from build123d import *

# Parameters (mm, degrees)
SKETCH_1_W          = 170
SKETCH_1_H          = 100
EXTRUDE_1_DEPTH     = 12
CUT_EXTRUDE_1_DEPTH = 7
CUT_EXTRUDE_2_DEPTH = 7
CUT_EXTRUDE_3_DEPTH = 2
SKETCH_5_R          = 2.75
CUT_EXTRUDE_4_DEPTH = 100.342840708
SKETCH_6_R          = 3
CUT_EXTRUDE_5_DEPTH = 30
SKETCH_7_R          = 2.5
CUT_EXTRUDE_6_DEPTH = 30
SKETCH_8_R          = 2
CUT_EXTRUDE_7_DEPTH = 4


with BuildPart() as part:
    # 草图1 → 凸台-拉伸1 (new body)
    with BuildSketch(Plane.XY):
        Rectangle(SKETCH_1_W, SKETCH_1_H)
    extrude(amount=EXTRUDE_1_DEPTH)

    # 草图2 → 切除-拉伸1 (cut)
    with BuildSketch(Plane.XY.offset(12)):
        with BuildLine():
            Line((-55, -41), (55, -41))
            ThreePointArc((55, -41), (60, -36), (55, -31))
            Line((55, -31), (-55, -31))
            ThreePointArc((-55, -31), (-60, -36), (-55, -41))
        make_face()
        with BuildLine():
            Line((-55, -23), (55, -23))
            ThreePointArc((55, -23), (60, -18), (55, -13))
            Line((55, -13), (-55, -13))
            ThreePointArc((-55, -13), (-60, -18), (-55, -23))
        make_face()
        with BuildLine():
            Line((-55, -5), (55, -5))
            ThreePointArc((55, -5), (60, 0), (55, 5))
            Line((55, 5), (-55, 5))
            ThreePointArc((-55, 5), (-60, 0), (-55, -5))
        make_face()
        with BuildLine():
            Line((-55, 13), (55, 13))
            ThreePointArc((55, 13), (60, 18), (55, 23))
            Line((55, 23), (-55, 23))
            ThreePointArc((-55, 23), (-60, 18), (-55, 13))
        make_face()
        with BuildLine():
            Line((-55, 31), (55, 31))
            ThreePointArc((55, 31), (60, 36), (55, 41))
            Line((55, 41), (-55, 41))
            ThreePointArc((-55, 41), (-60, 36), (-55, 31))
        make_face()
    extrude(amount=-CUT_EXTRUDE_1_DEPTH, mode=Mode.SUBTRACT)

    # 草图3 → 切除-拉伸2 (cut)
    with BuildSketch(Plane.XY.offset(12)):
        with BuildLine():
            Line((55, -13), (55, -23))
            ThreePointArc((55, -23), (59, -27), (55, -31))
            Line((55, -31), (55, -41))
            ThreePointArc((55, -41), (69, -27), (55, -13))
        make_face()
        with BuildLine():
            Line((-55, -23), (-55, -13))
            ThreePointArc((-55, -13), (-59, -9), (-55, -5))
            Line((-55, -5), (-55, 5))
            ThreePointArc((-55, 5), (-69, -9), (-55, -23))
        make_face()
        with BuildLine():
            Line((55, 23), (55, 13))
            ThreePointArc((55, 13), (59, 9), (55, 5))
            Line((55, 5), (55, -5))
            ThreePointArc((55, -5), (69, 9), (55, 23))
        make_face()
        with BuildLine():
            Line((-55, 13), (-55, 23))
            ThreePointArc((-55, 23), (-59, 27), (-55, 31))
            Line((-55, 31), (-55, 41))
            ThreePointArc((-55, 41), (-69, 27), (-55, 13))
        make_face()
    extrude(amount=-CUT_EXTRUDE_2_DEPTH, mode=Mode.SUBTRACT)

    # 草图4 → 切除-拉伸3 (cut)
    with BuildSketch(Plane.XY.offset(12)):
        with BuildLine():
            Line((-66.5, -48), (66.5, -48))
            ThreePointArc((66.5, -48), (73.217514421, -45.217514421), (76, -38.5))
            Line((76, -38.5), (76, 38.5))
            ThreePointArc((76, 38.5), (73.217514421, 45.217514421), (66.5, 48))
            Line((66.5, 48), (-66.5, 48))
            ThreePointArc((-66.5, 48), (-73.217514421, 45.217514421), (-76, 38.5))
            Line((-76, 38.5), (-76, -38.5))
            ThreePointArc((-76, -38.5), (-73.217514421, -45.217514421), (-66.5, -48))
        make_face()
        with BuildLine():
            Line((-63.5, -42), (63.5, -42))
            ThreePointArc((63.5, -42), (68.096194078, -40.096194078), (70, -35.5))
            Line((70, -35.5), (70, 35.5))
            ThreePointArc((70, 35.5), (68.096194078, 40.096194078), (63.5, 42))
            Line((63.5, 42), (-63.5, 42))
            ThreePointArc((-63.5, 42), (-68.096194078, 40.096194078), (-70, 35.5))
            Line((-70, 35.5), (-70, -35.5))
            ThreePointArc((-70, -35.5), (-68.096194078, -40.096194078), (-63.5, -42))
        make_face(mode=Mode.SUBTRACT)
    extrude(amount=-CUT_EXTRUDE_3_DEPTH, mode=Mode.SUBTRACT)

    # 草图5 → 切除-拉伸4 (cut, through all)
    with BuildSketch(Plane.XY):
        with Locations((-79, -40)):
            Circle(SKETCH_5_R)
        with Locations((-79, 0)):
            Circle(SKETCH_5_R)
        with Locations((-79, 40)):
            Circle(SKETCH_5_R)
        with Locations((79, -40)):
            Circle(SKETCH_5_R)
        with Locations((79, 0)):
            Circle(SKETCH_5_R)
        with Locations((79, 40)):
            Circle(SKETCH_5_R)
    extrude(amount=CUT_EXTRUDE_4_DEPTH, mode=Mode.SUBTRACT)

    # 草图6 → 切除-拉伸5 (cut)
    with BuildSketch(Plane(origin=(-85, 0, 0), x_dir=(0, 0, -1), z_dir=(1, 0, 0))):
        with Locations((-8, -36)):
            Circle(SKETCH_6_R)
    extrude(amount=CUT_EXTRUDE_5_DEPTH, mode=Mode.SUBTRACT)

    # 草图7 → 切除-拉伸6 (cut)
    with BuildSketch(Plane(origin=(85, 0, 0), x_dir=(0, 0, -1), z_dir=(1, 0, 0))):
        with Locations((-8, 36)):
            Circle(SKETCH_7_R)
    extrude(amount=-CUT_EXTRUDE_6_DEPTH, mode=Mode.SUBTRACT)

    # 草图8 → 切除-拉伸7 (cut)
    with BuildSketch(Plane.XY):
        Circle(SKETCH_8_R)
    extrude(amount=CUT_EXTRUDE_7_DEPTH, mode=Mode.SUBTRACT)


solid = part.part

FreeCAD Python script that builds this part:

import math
import FreeCAD as App
import Part
import Sketcher
Q = App.Units.Quantity

doc = App.newDocument("Part")
body = doc.addObject("PartDesign::Body", "Body")

# Sketch on XY plane
sketch1 = body.newObject("Sketcher::SketchObject", "Sketch")
sketch1.AttachmentSupport = (doc.getObject("XY_Plane"), [""])
sketch1.MapMode = "FlatFace"
sketch1.addGeometry([
    Part.LineSegment(App.Vector(-85, 50, 0), App.Vector(-85, -50, 0)),
    Part.LineSegment(App.Vector(-85, -50, 0), App.Vector(85, -50, 0)),
    Part.LineSegment(App.Vector(85, -50, 0), App.Vector(85, 50, 0)),
    Part.LineSegment(App.Vector(85, 50, 0), App.Vector(-85, 50, 0)),
], False)
sketch1.addConstraint([
    Sketcher.Constraint("Coincident", 0, 2, 1, 1),
    Sketcher.Constraint("Coincident", 1, 2, 2, 1),
    Sketcher.Constraint("Coincident", 2, 2, 3, 1),
    Sketcher.Constraint("Coincident", 3, 2, 0, 1),
    Sketcher.Constraint("Vertical", 0),
    Sketcher.Constraint("Horizontal", 1),
    Sketcher.Constraint("Vertical", 2),
    Sketcher.Constraint("Horizontal", 3),
    Sketcher.Constraint("Symmetric", 0, 2, 2, 2, -1, 1),
    Sketcher.Constraint("DistanceX", 1, 1, 1, 2, Q("170 mm")),
    Sketcher.Constraint("DistanceY", 0, 2, 0, 1, Q("100 mm")),
])
pad1 = body.newObject("PartDesign::Pad", "Pad")
pad1.Profile = sketch1
pad1.Length = 12

# Sketch on XY plane
sketch2 = body.newObject("Sketcher::SketchObject", "Sketch001")
sketch2.AttachmentSupport = (doc.getObject("XY_Plane"), [""])
sketch2.MapMode = "FlatFace"
sketch2.AttachmentOffset = App.Placement(App.Vector(0, 0, 12), App.Rotation())
sketch2.addGeometry([
    Part.LineSegment(App.Vector(-55, -41, 0), App.Vector(55, -41, 0)),  # 0
    Part.ArcOfCircle(Part.Circle(App.Vector(55, -36, 0), App.Vector(0, 0, 1), 5), math.radians(-90), math.radians(90)),  # 1
    Part.LineSegment(App.Vector(55, -31, 0), App.Vector(-55, -31, 0)),  # 2
    Part.ArcOfCircle(Part.Circle(App.Vector(-55, -36, 0), App.Vector(0, 0, 1), 5), math.radians(90), math.radians(270)),  # 3
    Part.LineSegment(App.Vector(-55, -23, 0), App.Vector(55, -23, 0)),  # 4
    Part.ArcOfCircle(Part.Circle(App.Vector(55, -18, 0), App.Vector(0, 0, 1), 5), math.radians(-90), math.radians(90)),  # 5
    Part.LineSegment(App.Vector(55, -13, 0), App.Vector(-55, -13, 0)),  # 6
    Part.ArcOfCircle(Part.Circle(App.Vector(-55, -18, 0), App.Vector(0, 0, 1), 5), math.radians(90), math.radians(270)),  # 7
    Part.LineSegment(App.Vector(-55, -5, 0), App.Vector(55, -5, 0)),  # 8
    Part.ArcOfCircle(Part.Circle(App.Vector(55, 0, 0), App.Vector(0, 0, 1), 5), math.radians(-90), math.radians(90)),  # 9
    Part.LineSegment(App.Vector(55, 5, 0), App.Vector(-55, 5, 0)),  # 10
    Part.ArcOfCircle(Part.Circle(App.Vector(-55, 0, 0), App.Vector(0, 0, 1), 5), math.radians(90), math.radians(270)),  # 11
    Part.LineSegment(App.Vector(-55, 13, 0), App.Vector(55, 13, 0)),  # 12
    Part.ArcOfCircle(Part.Circle(App.Vector(55, 18, 0), App.Vector(0, 0, 1), 5), math.radians(-90), math.radians(90)),  # 13
    Part.LineSegment(App.Vector(55, 23, 0), App.Vector(-55, 23, 0)),  # 14
    Part.ArcOfCircle(Part.Circle(App.Vector(-55, 18, 0), App.Vector(0, 0, 1), 5), math.radians(90), math.radians(270)),  # 15
    Part.LineSegment(App.Vector(-55, 31, 0), App.Vector(55, 31, 0)),  # 16
    Part.ArcOfCircle(Part.Circle(App.Vector(55, 36, 0), App.Vector(0, 0, 1), 5), math.radians(-90), math.radians(90)),  # 17
    Part.LineSegment(App.Vector(55, 41, 0), App.Vector(-55, 41, 0)),  # 18
    Part.ArcOfCircle(Part.Circle(App.Vector(-55, 36, 0), App.Vector(0, 0, 1), 5), math.radians(90), math.radians(270)),  # 19
], False)
sketch2.addConstraint([
    Sketcher.Constraint("Tangent", 0, 2, 1, 1),
    Sketcher.Constraint("Tangent", 1, 2, 2, 1),
    Sketcher.Constraint("Tangent", 2, 2, 3, 1),
    Sketcher.Constraint("Tangent", 3, 2, 0, 1),
    Sketcher.Constraint("Tangent", 4, 2, 5, 1),
    Sketcher.Constraint("Tangent", 5, 2, 6, 1),
    Sketcher.Constraint("Tangent", 6, 2, 7, 1),
    Sketcher.Constraint("Tangent", 7, 2, 4, 1),
    Sketcher.Constraint("Tangent", 8, 2, 9, 1),
    Sketcher.Constraint("Tangent", 9, 2, 10, 1),
    Sketcher.Constraint("Tangent", 10, 2, 11, 1),
    Sketcher.Constraint("Tangent", 11, 2, 8, 1),
    Sketcher.Constraint("Tangent", 12, 2, 13, 1),
    Sketcher.Constraint("Tangent", 13, 2, 14, 1),
    Sketcher.Constraint("Tangent", 14, 2, 15, 1),
    Sketcher.Constraint("Tangent", 15, 2, 12, 1),
    Sketcher.Constraint("Tangent", 16, 2, 17, 1),
    Sketcher.Constraint("Tangent", 17, 2, 18, 1),
    Sketcher.Constraint("Tangent", 18, 2, 19, 1),
    Sketcher.Constraint("Tangent", 19, 2, 16, 1),
    Sketcher.Constraint("Horizontal", 0),
    Sketcher.Constraint("Horizontal", 2),
    Sketcher.Constraint("Horizontal", 4),
    Sketcher.Constraint("Horizontal", 6),
    Sketcher.Constraint("Horizontal", 8),
    Sketcher.Constraint("Horizontal", 10),
    Sketcher.Constraint("Horizontal", 12),
    Sketcher.Constraint("Horizontal", 14),
    Sketcher.Constraint("Horizontal", 16),
    Sketcher.Constraint("Horizontal", 18),
    Sketcher.Constraint("Equal", 3, 5),
    Sketcher.Constraint("Equal", 7, 9),
    Sketcher.Constraint("Equal", 11, 13),
    Sketcher.Constraint("Equal", 15, 17),
    Sketcher.Constraint("Symmetric", 9, 3, 11, 3, -1, 1),
    Sketcher.Constraint("Symmetric", 7, 3, 13, 3, -1, 1),
    Sketcher.Constraint("Symmetric", 3, 3, 17, 3, -1, 1),
    Sketcher.Constraint("Vertical", 1, 3, 5, 3),
    Sketcher.Constraint("Vertical", 3, 3, 7, 3),
    Sketcher.Constraint("Vertical", 5, 3, 9, 3),
    Sketcher.Constraint("Vertical", 7, 3, 11, 3),
    Sketcher.Constraint("Vertical", 11, 3, 15, 3),
    Sketcher.Constraint("Vertical", 15, 3, 19, 3),
    Sketcher.Constraint("Radius", 1, Q("5 mm")),
    Sketcher.Constraint("DistanceX", 0, 1, 0, 2, Q("110 mm")),
    Sketcher.Constraint("DistanceY", 1, 3, -1, 1, Q("36 mm")),
    Sketcher.Constraint("DistanceY", 5, 3, -1, 1, Q("18 mm")),
])
pocket1 = body.newObject("PartDesign::Pocket", "Pocket")
pocket1.Profile = sketch2
pocket1.Length = 7

# Sketch on XY plane
sketch3 = body.newObject("Sketcher::SketchObject", "Sketch002")
sketch3.AttachmentSupport = (doc.getObject("XY_Plane"), [""])
sketch3.MapMode = "FlatFace"
sketch3.AttachmentOffset = App.Placement(App.Vector(0, 0, 12), App.Rotation())
sketch3.addGeometry([
    Part.LineSegment(App.Vector(55, -13, 0), App.Vector(55, -23, 0)),  # 0
    Part.ArcOfCircle(Part.Circle(App.Vector(55, -27, 0), App.Vector(0, 0, 1), 4), math.radians(-90), math.radians(90)),  # 1
    Part.LineSegment(App.Vector(55, -31, 0), App.Vector(55, -41, 0)),  # 2
    Part.ArcOfCircle(Part.Circle(App.Vector(55, -27, 0), App.Vector(0, 0, 1), 14), math.radians(-90), math.radians(90)),  # 3
    Part.LineSegment(App.Vector(-55, -23, 0), App.Vector(-55, -13, 0)),  # 4
    Part.ArcOfCircle(Part.Circle(App.Vector(-55, -9, 0), App.Vector(0, 0, 1), 4), math.radians(90), math.radians(270)),  # 5
    Part.LineSegment(App.Vector(-55, -5, 0), App.Vector(-55, 5, 0)),  # 6
    Part.ArcOfCircle(Part.Circle(App.Vector(-55, -9, 0), App.Vector(0, 0, 1), 14), math.radians(90), math.radians(270)),  # 7
    Part.LineSegment(App.Vector(55, 23, 0), App.Vector(55, 13, 0)),  # 8
    Part.ArcOfCircle(Part.Circle(App.Vector(55, 9, 0), App.Vector(0, 0, 1), 4), math.radians(-90), math.radians(90)),  # 9
    Part.LineSegment(App.Vector(55, 5, 0), App.Vector(55, -5, 0)),  # 10
    Part.ArcOfCircle(Part.Circle(App.Vector(55, 9, 0), App.Vector(0, 0, 1), 14), math.radians(-90), math.radians(90)),  # 11
    Part.LineSegment(App.Vector(-55, 13, 0), App.Vector(-55, 23, 0)),  # 12
    Part.ArcOfCircle(Part.Circle(App.Vector(-55, 27, 0), App.Vector(0, 0, 1), 4), math.radians(90), math.radians(270)),  # 13
    Part.LineSegment(App.Vector(-55, 31, 0), App.Vector(-55, 41, 0)),  # 14
    Part.ArcOfCircle(Part.Circle(App.Vector(-55, 27, 0), App.Vector(0, 0, 1), 14), math.radians(90), math.radians(270)),  # 15
], False)
sketch3.addConstraint([
    Sketcher.Constraint("Coincident", 0, 2, 1, 2),
    Sketcher.Constraint("Coincident", 1, 1, 2, 1),
    Sketcher.Constraint("Coincident", 2, 2, 3, 1),
    Sketcher.Constraint("Coincident", 3, 2, 0, 1),
    Sketcher.Constraint("Coincident", 4, 2, 5, 2),
    Sketcher.Constraint("Coincident", 5, 1, 6, 1),
    Sketcher.Constraint("Coincident", 6, 2, 7, 1),
    Sketcher.Constraint("Coincident", 7, 2, 4, 1),
    Sketcher.Constraint("Coincident", 8, 2, 9, 2),
    Sketcher.Constraint("Coincident", 9, 1, 10, 1),
    Sketcher.Constraint("Coincident", 10, 2, 11, 1),
    Sketcher.Constraint("Coincident", 11, 2, 8, 1),
    Sketcher.Constraint("Coincident", 12, 2, 13, 2),
    Sketcher.Constraint("Coincident", 13, 1, 14, 1),
    Sketcher.Constraint("Coincident", 14, 2, 15, 1),
    Sketcher.Constraint("Coincident", 15, 2, 12, 1),
    Sketcher.Constraint("Vertical", 0),
    Sketcher.Constraint("Vertical", 2),
    Sketcher.Constraint("Vertical", 4),
    Sketcher.Constraint("Vertical", 6),
    Sketcher.Constraint("Vertical", 8),
    Sketcher.Constraint("Vertical", 10),
    Sketcher.Constraint("Vertical", 12),
    Sketcher.Constraint("Vertical", 14),
    Sketcher.Constraint("Coincident", 3, 3, 1, 3),
    Sketcher.Constraint("Coincident", 7, 3, 5, 3),
    Sketcher.Constraint("Coincident", 11, 3, 9, 3),
    Sketcher.Constraint("Coincident", 15, 3, 13, 3),
    Sketcher.Constraint("Equal", 1, 5),
    Sketcher.Constraint("Equal", 3, 7),
    Sketcher.Constraint("Equal", 5, 9),
    Sketcher.Constraint("Equal", 7, 11),
    Sketcher.Constraint("Equal", 9, 13),
    Sketcher.Constraint("Equal", 11, 15),
    Sketcher.Constraint("Symmetric", 5, 3, 9, 3, -1, 1),
    Sketcher.Constraint("Symmetric", 1, 3, 13, 3, -1, 1),
    Sketcher.Constraint("Symmetric", 3, 2, 4, 2, -2),
    Sketcher.Constraint("Symmetric", 6, 2, 9, 1, -2),
    Sketcher.Constraint("Vertical", 3, 3, 9, 3),
    Sketcher.Constraint("Vertical", 11, 3, 0, 2),
    Sketcher.Constraint("Vertical", 0, 2, 1, 1),
    Sketcher.Constraint("Vertical", 4, 2, 5, 1),
    Sketcher.Constraint("Vertical", 3, 2, 8, 2),
    Sketcher.Constraint("Vertical", 7, 2, 12, 2),
    Sketcher.Constraint("Vertical", 12, 2, 13, 1),
    Sketcher.Constraint("Radius", 1, Q("4 mm")),
    Sketcher.Constraint("Radius", 3, Q("14 mm")),
    Sketcher.Constraint("DistanceX", -1, 1, 1, 3, Q("55 mm")),
])
pocket2 = body.newObject("PartDesign::Pocket", "Pocket001")
pocket2.Profile = sketch3
pocket2.Length = 7

# Sketch on XY plane
sketch4 = body.newObject("Sketcher::SketchObject", "Sketch003")
sketch4.AttachmentSupport = (doc.getObject("XY_Plane"), [""])
sketch4.MapMode = "FlatFace"
sketch4.AttachmentOffset = App.Placement(App.Vector(0, 0, 12), App.Rotation())
sketch4.addGeometry([
    Part.LineSegment(App.Vector(-66, -48, 0), App.Vector(66, -48, 0)),  # 0
    Part.ArcOfCircle(Part.Circle(App.Vector(66, -38, 0), App.Vector(0, 0, 1), 10), math.radians(-90), math.radians(0)),  # 1
    Part.LineSegment(App.Vector(76, -38, 0), App.Vector(76, 38, 0)),  # 2
    Part.ArcOfCircle(Part.Circle(App.Vector(66, 38, 0), App.Vector(0, 0, 1), 10), math.radians(0), math.radians(90)),  # 3
    Part.LineSegment(App.Vector(66, 48, 0), App.Vector(-66, 48, 0)),  # 4
    Part.ArcOfCircle(Part.Circle(App.Vector(-66, 38, 0), App.Vector(0, 0, 1), 10), math.radians(90), math.radians(180)),  # 5
    Part.LineSegment(App.Vector(-76, 38, 0), App.Vector(-76, -38, 0)),  # 6
    Part.ArcOfCircle(Part.Circle(App.Vector(-66, -38, 0), App.Vector(0, 0, 1), 10), math.radians(-180), math.radians(-90)),  # 7
    Part.LineSegment(App.Vector(64, -42, 0), App.Vector(-64, -42, 0)),  # 8
    Part.ArcOfCircle(Part.Circle(App.Vector(-64, -36, 0), App.Vector(0, 0, 1), 6), math.radians(180), math.radians(270)),  # 9
    Part.LineSegment(App.Vector(-70, -36, 0), App.Vector(-70, 36, 0)),  # 10
    Part.ArcOfCircle(Part.Circle(App.Vector(-64, 36, 0), App.Vector(0, 0, 1), 6), math.radians(90), math.radians(180)),  # 11
    Part.LineSegment(App.Vector(-64, 42, 0), App.Vector(64, 42, 0)),  # 12
    Part.ArcOfCircle(Part.Circle(App.Vector(64, 36, 0), App.Vector(0, 0, 1), 6), math.radians(0), math.radians(90)),  # 13
    Part.LineSegment(App.Vector(70, 36, 0), App.Vector(70, -36, 0)),  # 14
    Part.ArcOfCircle(Part.Circle(App.Vector(64, -36, 0), App.Vector(0, 0, 1), 6), math.radians(-90), math.radians(0)),  # 15
], False)
sketch4.addConstraint([
    Sketcher.Constraint("Tangent", 0, 2, 1, 1),
    Sketcher.Constraint("Tangent", 1, 2, 2, 1),
    Sketcher.Constraint("Tangent", 2, 2, 3, 1),
    Sketcher.Constraint("Tangent", 3, 2, 4, 1),
    Sketcher.Constraint("Tangent", 4, 2, 5, 1),
    Sketcher.Constraint("Tangent", 5, 2, 6, 1),
    Sketcher.Constraint("Tangent", 6, 2, 7, 1),
    Sketcher.Constraint("Tangent", 7, 2, 0, 1),
    Sketcher.Constraint("Tangent", 8, 2, 9, 2),
    Sketcher.Constraint("Tangent", 9, 1, 10, 1),
    Sketcher.Constraint("Tangent", 10, 2, 11, 2),
    Sketcher.Constraint("Tangent", 11, 1, 12, 1),
    Sketcher.Constraint("Tangent", 12, 2, 13, 2),
    Sketcher.Constraint("Tangent", 13, 1, 14, 1),
    Sketcher.Constraint("Tangent", 14, 2, 15, 2),
    Sketcher.Constraint("Tangent", 15, 1, 8, 1),
    Sketcher.Constraint("Horizontal", 0),
    Sketcher.Constraint("Vertical", 2),
    Sketcher.Constraint("Horizontal", 4),
    Sketcher.Constraint("Vertical", 6),
    Sketcher.Constraint("Horizontal", 8),
    Sketcher.Constraint("Vertical", 10),
    Sketcher.Constraint("Horizontal", 12),
    Sketcher.Constraint("Vertical", 14),
    Sketcher.Constraint("Equal", 1, 3),
    Sketcher.Constraint("Equal", 3, 5),
    Sketcher.Constraint("Equal", 5, 7),
    Sketcher.Constraint("Equal", 9, 11),
    Sketcher.Constraint("Equal", 11, 13),
    Sketcher.Constraint("Equal", 13, 15),
    Sketcher.Constraint("Symmetric", 1, 3, 5, 3, -1, 1),
    Sketcher.Constraint("Symmetric", 9, 3, 13, 3, -1, 1),
    Sketcher.Constraint("Radius", 1, Q("9.5 mm")),
    Sketcher.Constraint("Radius", 9, Q("6.5 mm")),
    Sketcher.Constraint("DistanceX", 0, 1, 0, 2, Q("133 mm")),
    Sketcher.Constraint("DistanceX", 8, 2, 8, 1, Q("127 mm")),
    Sketcher.Constraint("DistanceY", 2, 1, 2, 2, Q("77 mm")),
    Sketcher.Constraint("DistanceY", 10, 1, 10, 2, Q("71 mm")),
])
pocket3 = body.newObject("PartDesign::Pocket", "Pocket002")
pocket3.Profile = sketch4
pocket3.Length = 2

# Sketch on XY plane
sketch5 = body.newObject("Sketcher::SketchObject", "Sketch004")
sketch5.AttachmentSupport = (doc.getObject("XY_Plane"), [""])
sketch5.MapMode = "FlatFace"
sketch5.addGeometry([
    Part.Circle(App.Vector(-79, -40, 0), App.Vector(0, 0, 1), 2.8),  # 0
    Part.Circle(App.Vector(-79, 0, 0), App.Vector(0, 0, 1), 2.8),  # 1
    Part.Circle(App.Vector(-79, 40, 0), App.Vector(0, 0, 1), 2.8),  # 2
    Part.Circle(App.Vector(79, -40, 0), App.Vector(0, 0, 1), 2.8),  # 3
    Part.Circle(App.Vector(79, 0, 0), App.Vector(0, 0, 1), 2.8),  # 4
    Part.Circle(App.Vector(79, 40, 0), App.Vector(0, 0, 1), 2.8),  # 5
], False)
sketch5.addConstraint([
    Sketcher.Constraint("Equal", 0, 1),
    Sketcher.Constraint("Equal", 1, 2),
    Sketcher.Constraint("Equal", 2, 3),
    Sketcher.Constraint("Equal", 3, 4),
    Sketcher.Constraint("Equal", 4, 5),
    Sketcher.Constraint("Symmetric", 2, 3, 3, 3, -1, 1),
    Sketcher.Constraint("Symmetric", 1, 3, 4, 3, -1, 1),
    Sketcher.Constraint("Symmetric", 0, 3, 5, 3, -1, 1),
    Sketcher.Constraint("Symmetric", 0, 3, 3, 3, -2),
    Sketcher.Constraint("PointOnObject", 1, 3, -1),
    Sketcher.Constraint("Vertical", 0, 3, 1, 3),
    Sketcher.Constraint("Diameter", 0, Q("5.5 mm")),
    Sketcher.Constraint("DistanceX", 0, 3, -1, 1, Q("79 mm")),
    Sketcher.Constraint("DistanceY", 0, 3, -1, 1, Q("40 mm")),
])
pocket4 = body.newObject("PartDesign::Pocket", "Pocket003")
pocket4.Profile = sketch5
pocket4.Type = "ThroughAll"
pocket4.Reversed = True

# Sketch on YZ plane
sketch6 = body.newObject("Sketcher::SketchObject", "Sketch005")
sketch6.AttachmentSupport = (doc.getObject("YZ_Plane"), [""])
sketch6.MapMode = "FlatFace"
sketch6.AttachmentOffset = App.Placement(App.Vector(0, 0, -85), App.Rotation())
sketch6.addGeometry(Part.Circle(App.Vector(-36, 8, 0), App.Vector(0, 0, 1), 3), False)
sketch6.addConstraint([
    Sketcher.Constraint("Diameter", 0, Q("6 mm")),
    Sketcher.Constraint("DistanceX", 0, 3, -1, 1, Q("36 mm")),
    Sketcher.Constraint("DistanceY", -1, 1, 0, 3, Q("8 mm")),
])
pocket5 = body.newObject("PartDesign::Pocket", "Pocket004")
pocket5.Profile = sketch6
pocket5.Length = 30
pocket5.Reversed = True

# Sketch on YZ plane
sketch7 = body.newObject("Sketcher::SketchObject", "Sketch006")
sketch7.AttachmentSupport = (doc.getObject("YZ_Plane"), [""])
sketch7.MapMode = "FlatFace"
sketch7.AttachmentOffset = App.Placement(App.Vector(0, 0, 85), App.Rotation())
sketch7.addGeometry(Part.Circle(App.Vector(36, 8, 0), App.Vector(0, 0, 1), 2.5), False)
sketch7.addConstraint([
    Sketcher.Constraint("Diameter", 0, Q("5 mm")),
    Sketcher.Constraint("DistanceX", -1, 1, 0, 3, Q("36 mm")),
    Sketcher.Constraint("DistanceY", -1, 1, 0, 3, Q("8 mm")),
])
pocket6 = body.newObject("PartDesign::Pocket", "Pocket005")
pocket6.Profile = sketch7
pocket6.Length = 30

# Sketch on XY plane
sketch8 = body.newObject("Sketcher::SketchObject", "Sketch007")
sketch8.AttachmentSupport = (doc.getObject("XY_Plane"), [""])
sketch8.MapMode = "FlatFace"
sketch8.addGeometry(Part.Circle(App.Vector(0, 0, 0), App.Vector(0, 0, 1), 2), False)
sketch8.addConstraint([
    Sketcher.Constraint("Coincident", 0, 3, -1, 1),
    Sketcher.Constraint("Diameter", 0, Q("4 mm")),
])
pocket7 = body.newObject("PartDesign::Pocket", "Pocket006")
pocket7.Profile = sketch8
pocket7.Length = 4
pocket7.Reversed = True

doc.recompute()
